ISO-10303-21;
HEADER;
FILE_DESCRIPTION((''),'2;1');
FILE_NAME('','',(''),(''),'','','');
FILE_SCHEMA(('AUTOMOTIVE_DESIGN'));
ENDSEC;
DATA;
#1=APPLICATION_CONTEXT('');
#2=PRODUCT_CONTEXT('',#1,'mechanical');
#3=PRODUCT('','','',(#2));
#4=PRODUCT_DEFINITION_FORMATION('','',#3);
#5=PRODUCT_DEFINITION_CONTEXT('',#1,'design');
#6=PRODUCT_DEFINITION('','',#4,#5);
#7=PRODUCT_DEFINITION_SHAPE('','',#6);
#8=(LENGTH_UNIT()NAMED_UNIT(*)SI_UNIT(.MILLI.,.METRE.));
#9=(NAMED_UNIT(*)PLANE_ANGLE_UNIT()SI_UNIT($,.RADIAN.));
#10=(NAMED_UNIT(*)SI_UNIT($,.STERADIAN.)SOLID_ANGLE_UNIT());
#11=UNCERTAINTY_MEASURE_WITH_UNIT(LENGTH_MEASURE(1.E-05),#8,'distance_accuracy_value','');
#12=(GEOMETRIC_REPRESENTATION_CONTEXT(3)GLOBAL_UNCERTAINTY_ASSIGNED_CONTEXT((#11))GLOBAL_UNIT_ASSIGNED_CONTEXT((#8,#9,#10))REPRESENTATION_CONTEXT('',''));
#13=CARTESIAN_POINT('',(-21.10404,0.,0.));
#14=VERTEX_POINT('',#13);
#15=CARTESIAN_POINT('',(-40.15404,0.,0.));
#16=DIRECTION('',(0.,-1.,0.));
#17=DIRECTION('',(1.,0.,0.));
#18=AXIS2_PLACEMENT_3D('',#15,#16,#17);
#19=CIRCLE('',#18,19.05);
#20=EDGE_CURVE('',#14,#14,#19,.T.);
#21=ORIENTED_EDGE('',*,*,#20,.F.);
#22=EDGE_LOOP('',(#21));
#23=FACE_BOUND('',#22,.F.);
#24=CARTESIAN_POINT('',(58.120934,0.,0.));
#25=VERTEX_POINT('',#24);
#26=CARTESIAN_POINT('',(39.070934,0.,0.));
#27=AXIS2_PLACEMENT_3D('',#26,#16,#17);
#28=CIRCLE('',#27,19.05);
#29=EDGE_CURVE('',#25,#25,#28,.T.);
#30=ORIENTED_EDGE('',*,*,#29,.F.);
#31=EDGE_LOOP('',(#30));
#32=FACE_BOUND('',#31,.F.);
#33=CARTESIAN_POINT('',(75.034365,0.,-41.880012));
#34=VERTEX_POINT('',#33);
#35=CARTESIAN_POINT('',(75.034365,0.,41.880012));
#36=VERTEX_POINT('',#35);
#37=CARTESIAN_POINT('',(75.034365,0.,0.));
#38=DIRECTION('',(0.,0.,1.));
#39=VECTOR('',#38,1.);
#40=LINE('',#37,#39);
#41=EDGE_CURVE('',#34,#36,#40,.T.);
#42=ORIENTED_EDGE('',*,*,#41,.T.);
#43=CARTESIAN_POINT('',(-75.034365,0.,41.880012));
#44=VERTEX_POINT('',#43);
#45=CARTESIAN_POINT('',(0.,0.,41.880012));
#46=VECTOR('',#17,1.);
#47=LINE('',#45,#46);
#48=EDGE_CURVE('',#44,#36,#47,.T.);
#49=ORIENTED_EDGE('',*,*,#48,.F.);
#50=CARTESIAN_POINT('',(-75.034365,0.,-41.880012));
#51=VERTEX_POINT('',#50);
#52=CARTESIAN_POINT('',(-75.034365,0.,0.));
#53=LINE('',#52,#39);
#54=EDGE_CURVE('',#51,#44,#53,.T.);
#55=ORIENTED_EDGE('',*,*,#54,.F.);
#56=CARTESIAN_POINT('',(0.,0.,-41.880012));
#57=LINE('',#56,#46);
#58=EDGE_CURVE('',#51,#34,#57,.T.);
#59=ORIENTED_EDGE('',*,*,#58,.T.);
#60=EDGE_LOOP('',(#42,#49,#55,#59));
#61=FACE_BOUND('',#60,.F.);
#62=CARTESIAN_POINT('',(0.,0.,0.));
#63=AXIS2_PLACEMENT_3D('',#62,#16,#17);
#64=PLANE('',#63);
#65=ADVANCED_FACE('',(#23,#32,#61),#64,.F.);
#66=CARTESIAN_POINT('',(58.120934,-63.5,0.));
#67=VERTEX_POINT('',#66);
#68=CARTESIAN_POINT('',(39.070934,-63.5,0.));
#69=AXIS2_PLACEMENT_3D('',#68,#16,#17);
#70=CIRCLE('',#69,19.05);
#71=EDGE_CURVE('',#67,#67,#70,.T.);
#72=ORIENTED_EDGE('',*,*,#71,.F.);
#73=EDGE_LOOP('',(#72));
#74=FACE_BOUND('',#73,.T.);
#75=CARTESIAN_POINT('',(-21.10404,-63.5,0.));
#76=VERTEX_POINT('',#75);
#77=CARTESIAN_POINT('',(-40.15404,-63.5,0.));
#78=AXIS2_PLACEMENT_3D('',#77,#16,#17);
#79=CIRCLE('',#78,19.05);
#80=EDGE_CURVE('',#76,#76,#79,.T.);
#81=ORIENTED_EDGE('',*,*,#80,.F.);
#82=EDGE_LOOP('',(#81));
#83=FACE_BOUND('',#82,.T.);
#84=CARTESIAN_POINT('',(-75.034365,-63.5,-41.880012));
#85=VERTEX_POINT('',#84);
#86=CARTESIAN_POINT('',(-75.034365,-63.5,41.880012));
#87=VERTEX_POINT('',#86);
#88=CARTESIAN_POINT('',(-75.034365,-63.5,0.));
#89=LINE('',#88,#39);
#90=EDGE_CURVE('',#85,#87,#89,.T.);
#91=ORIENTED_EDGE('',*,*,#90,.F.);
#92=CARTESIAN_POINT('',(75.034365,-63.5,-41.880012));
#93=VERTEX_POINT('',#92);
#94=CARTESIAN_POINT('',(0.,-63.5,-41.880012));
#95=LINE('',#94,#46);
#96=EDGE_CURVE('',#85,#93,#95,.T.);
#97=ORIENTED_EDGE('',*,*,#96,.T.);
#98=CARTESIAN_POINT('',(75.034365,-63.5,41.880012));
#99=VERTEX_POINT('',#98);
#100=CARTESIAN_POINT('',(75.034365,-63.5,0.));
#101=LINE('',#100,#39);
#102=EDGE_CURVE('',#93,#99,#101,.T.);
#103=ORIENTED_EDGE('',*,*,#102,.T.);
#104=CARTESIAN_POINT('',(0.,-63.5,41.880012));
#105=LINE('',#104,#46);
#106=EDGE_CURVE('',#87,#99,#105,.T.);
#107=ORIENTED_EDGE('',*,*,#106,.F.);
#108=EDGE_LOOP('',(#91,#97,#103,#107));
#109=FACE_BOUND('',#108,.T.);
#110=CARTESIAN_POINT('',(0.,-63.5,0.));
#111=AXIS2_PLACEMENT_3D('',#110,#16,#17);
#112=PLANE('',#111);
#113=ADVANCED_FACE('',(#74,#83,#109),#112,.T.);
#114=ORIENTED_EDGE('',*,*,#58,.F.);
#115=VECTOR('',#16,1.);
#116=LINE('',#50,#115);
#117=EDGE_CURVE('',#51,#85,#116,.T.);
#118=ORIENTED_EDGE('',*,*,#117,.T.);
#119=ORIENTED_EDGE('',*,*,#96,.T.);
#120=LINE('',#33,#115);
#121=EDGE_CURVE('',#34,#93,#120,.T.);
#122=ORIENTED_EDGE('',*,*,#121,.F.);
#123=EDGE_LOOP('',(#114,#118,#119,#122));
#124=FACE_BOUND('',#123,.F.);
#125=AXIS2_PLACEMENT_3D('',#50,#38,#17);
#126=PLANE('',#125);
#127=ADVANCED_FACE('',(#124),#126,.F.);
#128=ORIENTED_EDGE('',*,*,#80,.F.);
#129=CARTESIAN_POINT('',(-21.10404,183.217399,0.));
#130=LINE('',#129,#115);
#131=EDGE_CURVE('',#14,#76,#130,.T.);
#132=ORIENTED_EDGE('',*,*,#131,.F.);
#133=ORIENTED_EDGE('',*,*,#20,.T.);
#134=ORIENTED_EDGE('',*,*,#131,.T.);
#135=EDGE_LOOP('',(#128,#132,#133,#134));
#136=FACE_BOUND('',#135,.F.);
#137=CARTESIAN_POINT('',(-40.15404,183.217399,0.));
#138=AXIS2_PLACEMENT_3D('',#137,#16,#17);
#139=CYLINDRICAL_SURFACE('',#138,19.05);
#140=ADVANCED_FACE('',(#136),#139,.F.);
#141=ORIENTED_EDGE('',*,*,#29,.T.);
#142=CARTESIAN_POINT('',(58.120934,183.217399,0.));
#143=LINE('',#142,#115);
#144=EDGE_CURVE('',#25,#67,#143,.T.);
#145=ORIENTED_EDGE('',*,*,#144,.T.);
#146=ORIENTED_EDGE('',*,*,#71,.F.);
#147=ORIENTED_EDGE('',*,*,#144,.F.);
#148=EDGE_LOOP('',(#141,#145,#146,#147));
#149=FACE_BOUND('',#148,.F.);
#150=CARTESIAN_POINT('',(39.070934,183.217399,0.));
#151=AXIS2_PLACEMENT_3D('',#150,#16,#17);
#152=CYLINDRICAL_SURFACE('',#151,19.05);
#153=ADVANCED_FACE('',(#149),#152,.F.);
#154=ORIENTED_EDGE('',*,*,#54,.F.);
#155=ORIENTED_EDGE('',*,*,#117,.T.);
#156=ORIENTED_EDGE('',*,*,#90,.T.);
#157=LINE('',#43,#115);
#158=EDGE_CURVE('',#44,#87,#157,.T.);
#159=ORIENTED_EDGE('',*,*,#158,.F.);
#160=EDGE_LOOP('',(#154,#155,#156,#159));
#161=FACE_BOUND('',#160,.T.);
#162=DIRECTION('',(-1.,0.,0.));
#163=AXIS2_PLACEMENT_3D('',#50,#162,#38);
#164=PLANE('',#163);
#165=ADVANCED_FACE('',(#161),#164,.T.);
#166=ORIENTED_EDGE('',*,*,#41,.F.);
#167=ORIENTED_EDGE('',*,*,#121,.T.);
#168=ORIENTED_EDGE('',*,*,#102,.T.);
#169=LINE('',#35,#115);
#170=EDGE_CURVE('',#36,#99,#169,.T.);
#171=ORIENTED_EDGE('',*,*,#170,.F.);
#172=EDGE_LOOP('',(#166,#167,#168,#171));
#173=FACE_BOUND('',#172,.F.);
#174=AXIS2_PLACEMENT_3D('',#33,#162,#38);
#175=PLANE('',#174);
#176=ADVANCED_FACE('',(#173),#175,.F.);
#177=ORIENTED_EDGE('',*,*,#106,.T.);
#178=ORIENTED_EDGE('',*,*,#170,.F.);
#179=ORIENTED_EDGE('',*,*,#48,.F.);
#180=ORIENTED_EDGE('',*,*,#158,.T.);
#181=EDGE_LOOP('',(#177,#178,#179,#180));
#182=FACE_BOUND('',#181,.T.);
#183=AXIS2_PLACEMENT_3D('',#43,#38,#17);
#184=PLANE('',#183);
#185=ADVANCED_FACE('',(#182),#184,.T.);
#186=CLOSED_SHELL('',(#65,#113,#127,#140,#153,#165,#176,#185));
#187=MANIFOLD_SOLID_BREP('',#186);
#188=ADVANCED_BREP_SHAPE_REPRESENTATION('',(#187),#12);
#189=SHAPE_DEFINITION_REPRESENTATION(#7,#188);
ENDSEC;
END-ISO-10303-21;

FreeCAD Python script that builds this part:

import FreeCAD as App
import Part
import Sketcher
Q = App.Units.Quantity

doc = App.newDocument("Part")
body = doc.addObject("PartDesign::Body", "Body")

# Sketch on XZ plane
sketch1 = body.newObject("Sketcher::SketchObject", "Sketch")
sketch1.AttachmentSupport = (doc.getObject("XZ_Plane"), [""])
sketch1.MapMode = "FlatFace"
sketch1.addGeometry([
    Part.LineSegment(App.Vector(-75, 42, 0), App.Vector(-75, -42, 0)),
    Part.LineSegment(App.Vector(-75, -42, 0), App.Vector(75, -42, 0)),
    Part.LineSegment(App.Vector(75, -42, 0), App.Vector(75, 42, 0)),
    Part.LineSegment(App.Vector(75, 42, 0), App.Vector(-75, 42, 0)),
], False)
sketch1.addConstraint([
    Sketcher.Constraint("Coincident", 0, 2, 1, 1),
    Sketcher.Constraint("Coincident", 1, 2, 2, 1),
    Sketcher.Constraint("Coincident", 2, 2, 3, 1),
    Sketcher.Constraint("Coincident", 3, 2, 0, 1),
    Sketcher.Constraint("Vertical", 0),
    Sketcher.Constraint("Horizontal", 1),
    Sketcher.Constraint("Vertical", 2),
    Sketcher.Constraint("Horizontal", 3),
    Sketcher.Constraint("Symmetric", 0, 2, 2, 2, -1, 1),
    Sketcher.Constraint("DistanceX", 1, 1, 1, 2, 150.06873),
    Sketcher.Constraint("DistanceY", 0, 2, 0, 1, 83.760024),
])
pad1 = body.newObject("PartDesign::Pad", "Pad")
pad1.Profile = sketch1
pad1.Length = Q("2.5 in")

# Sketch on XZ plane
sketch2 = body.newObject("Sketcher::SketchObject", "Sketch001")
sketch2.AttachmentSupport = (doc.getObject("XZ_Plane"), [""])
sketch2.MapMode = "FlatFace"
sketch2.addGeometry(Part.Circle(App.Vector(39, 0, 0), App.Vector(0, 0, 1), 19), False)
sketch2.addConstraint([
    Sketcher.Constraint("PointOnObject", 0, 3, -1),
    Sketcher.Constraint("Diameter", 0, Q("1.5 in")),
    Sketcher.Constraint("DistanceX", -1, 1, 0, 3, 39.070934),
])
doc.recompute()
hole = body.newObject("PartDesign::Hole", "Hole")
hole.Profile = sketch2
hole.ThreadType = "None"
hole.Diameter = Q("1.5 in")
hole.DepthType = "ThroughAll"
hole.Reversed = True

# Sketch on XZ plane
sketch3 = body.newObject("Sketcher::SketchObject", "Sketch002")
sketch3.AttachmentSupport = (doc.getObject("XZ_Plane"), [""])
sketch3.MapMode = "FlatFace"
sketch3.addGeometry(Part.Circle(App.Vector(-40, 0, 0), App.Vector(0, 0, 1), 19), False)
sketch3.addConstraint([
    Sketcher.Constraint("PointOnObject", 0, 3, -1),
    Sketcher.Constraint("Diameter", 0, Q("1.5 in")),
    Sketcher.Constraint("DistanceX", 0, 3, -1, 1, 40.15404),
])
doc.recompute()
hole2 = body.newObject("PartDesign::Hole", "Hole001")
hole2.Profile = sketch3
hole2.ThreadType = "None"
hole2.Diameter = Q("1.5 in")
hole2.DepthType = "ThroughAll"
hole2.Reversed = True

doc.recompute()
